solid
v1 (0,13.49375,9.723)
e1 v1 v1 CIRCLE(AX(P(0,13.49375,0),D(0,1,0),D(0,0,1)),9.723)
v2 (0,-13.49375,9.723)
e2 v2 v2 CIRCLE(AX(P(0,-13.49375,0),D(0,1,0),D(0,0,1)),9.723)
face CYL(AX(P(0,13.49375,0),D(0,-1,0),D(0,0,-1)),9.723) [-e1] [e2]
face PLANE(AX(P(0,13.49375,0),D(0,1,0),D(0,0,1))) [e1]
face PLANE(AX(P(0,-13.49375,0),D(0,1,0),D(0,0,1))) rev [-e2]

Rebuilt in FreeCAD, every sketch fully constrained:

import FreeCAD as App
import Part
import Sketcher
Q = App.Units.Quantity

doc = App.newDocument("Part")
body = doc.addObject("PartDesign::Body", "Body")

sketch1 = body.newObject("Sketcher::SketchObject", "Sketch")
sketch1.AttachmentSupport = (doc.getObject("XZ_Plane"), [""])
sketch1.MapMode = "FlatFace"
sketch1.addGeometry(Part.Circle(App.Vector(0, 0, 0), App.Vector(0, 0, 1), 10), False)
sketch1.addConstraint([
    Sketcher.Constraint("Coincident", 0, 3, -1, 1),
    Sketcher.Constraint("Diameter", 0, 19.446),
])
pad1 = body.newObject("PartDesign::Pad", "Pad")
pad1.Profile = sketch1
pad1.Length = Q("1.0625 in")
pad1.Midplane = True

doc.recompute()
